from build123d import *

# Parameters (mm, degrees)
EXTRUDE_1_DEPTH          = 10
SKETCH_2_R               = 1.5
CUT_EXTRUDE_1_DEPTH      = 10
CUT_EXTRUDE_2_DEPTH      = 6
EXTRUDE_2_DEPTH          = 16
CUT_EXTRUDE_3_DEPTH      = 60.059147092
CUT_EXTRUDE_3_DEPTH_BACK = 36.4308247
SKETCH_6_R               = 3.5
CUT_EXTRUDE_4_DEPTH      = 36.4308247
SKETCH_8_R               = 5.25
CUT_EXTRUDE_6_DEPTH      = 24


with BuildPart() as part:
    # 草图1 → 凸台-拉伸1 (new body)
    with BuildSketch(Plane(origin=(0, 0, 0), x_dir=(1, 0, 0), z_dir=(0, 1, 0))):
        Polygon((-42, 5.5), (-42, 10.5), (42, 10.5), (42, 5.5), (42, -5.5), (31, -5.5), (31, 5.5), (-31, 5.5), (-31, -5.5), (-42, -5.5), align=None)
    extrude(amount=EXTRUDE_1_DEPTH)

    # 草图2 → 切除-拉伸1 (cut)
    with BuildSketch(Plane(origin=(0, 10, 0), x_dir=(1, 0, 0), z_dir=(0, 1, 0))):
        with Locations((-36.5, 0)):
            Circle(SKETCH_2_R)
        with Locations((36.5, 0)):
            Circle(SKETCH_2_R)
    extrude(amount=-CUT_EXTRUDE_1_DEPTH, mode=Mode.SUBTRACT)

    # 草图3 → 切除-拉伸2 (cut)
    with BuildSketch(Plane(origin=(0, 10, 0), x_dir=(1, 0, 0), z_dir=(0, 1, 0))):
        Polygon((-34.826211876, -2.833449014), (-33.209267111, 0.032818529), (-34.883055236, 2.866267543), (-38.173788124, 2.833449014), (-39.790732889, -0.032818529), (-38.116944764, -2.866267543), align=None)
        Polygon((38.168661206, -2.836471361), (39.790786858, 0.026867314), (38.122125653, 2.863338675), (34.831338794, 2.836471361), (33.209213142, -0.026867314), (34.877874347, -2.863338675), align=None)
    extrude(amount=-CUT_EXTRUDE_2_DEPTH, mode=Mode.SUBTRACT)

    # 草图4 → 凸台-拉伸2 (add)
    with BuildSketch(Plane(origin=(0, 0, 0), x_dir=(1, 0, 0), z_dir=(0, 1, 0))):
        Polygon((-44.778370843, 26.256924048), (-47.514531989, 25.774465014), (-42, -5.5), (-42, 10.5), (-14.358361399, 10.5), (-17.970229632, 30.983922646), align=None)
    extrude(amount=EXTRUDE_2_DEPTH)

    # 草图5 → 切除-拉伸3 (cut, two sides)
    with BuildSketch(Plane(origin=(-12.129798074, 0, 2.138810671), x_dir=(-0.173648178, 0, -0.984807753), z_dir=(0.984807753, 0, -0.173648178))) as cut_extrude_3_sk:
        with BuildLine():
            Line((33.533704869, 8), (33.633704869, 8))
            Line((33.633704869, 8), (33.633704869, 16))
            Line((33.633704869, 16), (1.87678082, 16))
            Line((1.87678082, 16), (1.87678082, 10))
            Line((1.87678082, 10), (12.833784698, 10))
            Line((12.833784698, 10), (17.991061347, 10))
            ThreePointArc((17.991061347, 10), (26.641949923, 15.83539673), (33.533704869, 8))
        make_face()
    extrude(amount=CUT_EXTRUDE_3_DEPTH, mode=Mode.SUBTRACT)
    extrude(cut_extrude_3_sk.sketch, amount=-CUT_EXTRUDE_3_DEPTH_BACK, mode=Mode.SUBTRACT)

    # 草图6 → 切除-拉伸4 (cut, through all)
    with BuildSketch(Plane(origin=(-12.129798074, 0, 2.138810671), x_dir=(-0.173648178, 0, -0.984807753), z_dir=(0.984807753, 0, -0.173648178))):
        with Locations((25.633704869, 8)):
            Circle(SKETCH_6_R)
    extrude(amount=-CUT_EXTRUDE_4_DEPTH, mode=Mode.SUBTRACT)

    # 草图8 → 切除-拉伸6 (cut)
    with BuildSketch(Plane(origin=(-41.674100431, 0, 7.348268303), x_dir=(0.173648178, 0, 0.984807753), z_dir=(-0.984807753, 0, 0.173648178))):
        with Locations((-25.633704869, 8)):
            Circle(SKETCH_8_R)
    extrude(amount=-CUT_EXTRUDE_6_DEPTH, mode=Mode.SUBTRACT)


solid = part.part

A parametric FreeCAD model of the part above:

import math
import FreeCAD as App
import Part
import Sketcher
from FreeCAD import Vector
Q = App.Units.Quantity


def add_polygon(sketch, points):
    """Adds a closed chain of lines whose ends are joined by coincident constraints."""
    first, n = sketch.GeometryCount, len(points)
    for a, b in zip(points, points[1:] + points[:1]):
        sketch.addGeometry(Part.LineSegment(App.Vector(*a, 0), App.Vector(*b, 0)), False)
    for i in range(n):
        sketch.addConstraint(Sketcher.Constraint("Coincident", first + i, 2, first + (i + 1) % n, 1))

doc = App.newDocument("Part")
body = doc.addObject("PartDesign::Body", "Body")

# Sketch on XZ plane
sketch1 = doc.addObject("Sketcher::SketchObject", "Sketch")
body.addObject(sketch1)
sketch1.AttachmentSupport = (doc.XZ_Plane, [""])
sketch1.MapMode = "FlatFace"
add_polygon(sketch1, [(-42, -10.5), (-42, 5.5), (-31, 5.5), (-31, -5.5), (31, -5.5), (31, 5.5), (42, 5.5), (42, -10.5)])  # lines 0-7
sketch1.addConstraint([
    Sketcher.Constraint("Vertical", 0),
    Sketcher.Constraint("Horizontal", 1),
    Sketcher.Constraint("Vertical", 2),
    Sketcher.Constraint("Horizontal", 3),
    Sketcher.Constraint("Vertical", 4),
    Sketcher.Constraint("Horizontal", 5),
    Sketcher.Constraint("Vertical", 6),
    Sketcher.Constraint("Horizontal", 7),
    Sketcher.Constraint("Symmetric", 1, 2, 3, 2, -1, 1),
    Sketcher.Constraint("Symmetric", 0, 2, 5, 2, -2),
    Sketcher.Constraint("Equal", 5, 2),
    Sketcher.Constraint("DistanceX", 1, 1, 1, 2, 11.0),
    Sketcher.Constraint("DistanceX", 3, 1, 3, 2, 62.0),
    Sketcher.Constraint("DistanceY", 0, 1, 0, 2, 16.0),
])
pad1 = doc.addObject("PartDesign::Pad", "Pad")
body.addObject(pad1)
pad1.Profile = sketch1
pad1.Length = 10
pad1.Reversed = True

# Sketch on XZ plane
sketch2 = doc.addObject("Sketcher::SketchObject", "Sketch001")
body.addObject(sketch2)
sketch2.AttachmentSupport = (doc.XZ_Plane, [""])
sketch2.MapMode = "FlatFace"
sketch2.AttachmentOffset = App.Placement(Vector(0, 0, -10), App.Rotation())
sketch2.addGeometry([
    Part.Circle(Vector(-36.5, 0, 0), Vector(0, 0, 1), 1.5),
    Part.Circle(Vector(36.5, 0, 0), Vector(0, 0, 1), 1.5),
], False)
sketch2.addConstraint([
    Sketcher.Constraint("Equal", 0, 1),
    Sketcher.Constraint("Symmetric", 0, 3, 1, 3, -1, 1),
    Sketcher.Constraint("PointOnObject", 0, 3, -1),
    Sketcher.Constraint("Diameter", 0, 3.0),
    Sketcher.Constraint("DistanceX", 0, 3, 1, 3, 73.0),
])
pocket1 = doc.addObject("PartDesign::Pocket", "Pocket")
body.addObject(pocket1)
pocket1.Profile = sketch2
pocket1.Length = 10
pocket1.Reversed = True

# Sketch on XZ plane
sketch3 = doc.addObject("Sketcher::SketchObject", "Sketch002")
body.addObject(sketch3)
sketch3.AttachmentSupport = (doc.XZ_Plane, [""])
sketch3.MapMode = "FlatFace"
sketch3.AttachmentOffset = App.Placement(Vector(0, 0, -10), App.Rotation())
add_polygon(sketch3, [(-34.826212, 2.833449), (-33.209267, -0.032819), (-34.883055, -2.866268), (-38.173788, -2.833449), (-39.790733, 0.032819), (-38.116945, 2.866268)])  # lines 0-5
add_polygon(sketch3, [(38.168661, 2.836471), (39.790787, -0.026867), (38.122126, -2.863339), (34.831339, -2.836471), (33.209213, 0.026867), (34.877874, 2.863339)])  # lines 6-11
sketch3.addConstraint([
    Sketcher.Constraint("Parallel", 0, 3),
    Sketcher.Constraint("Parallel", 1, 4),
    Sketcher.Constraint("Parallel", 2, 5),
    Sketcher.Constraint("Parallel", 6, 9),
    Sketcher.Constraint("Parallel", 7, 10),
    Sketcher.Constraint("Parallel", 8, 11),
    Sketcher.Constraint("Equal", 0, 1),
    Sketcher.Constraint("Equal", 1, 2),
    Sketcher.Constraint("Equal", 2, 3),
    Sketcher.Constraint("Equal", 5, 6),
    Sketcher.Constraint("Equal", 6, 7),
    Sketcher.Constraint("Equal", 7, 8),
    Sketcher.Constraint("Equal", 8, 9),
    Sketcher.Constraint("DistanceX", 5, 2, 6, 2, 74.616999),
    Sketcher.Constraint("DistanceY", 2, 2, 5, 2, 5.666898),
    Sketcher.Constraint("DistanceY", 1, 2, 6, 2, 2.8394),
    Sketcher.Constraint("DistanceY", 0, 2, -1, 1, 0.032819),
    Sketcher.Constraint("DistanceX", 2, 2, -1, 1, 38.173788),
    Sketcher.Constraint("DistanceY", 2, 2, -1, 1, 2.833449),
    Sketcher.Constraint("DistanceX", 5, 2, -1, 1, 34.826212),
    Sketcher.Constraint("DistanceY", 7, 2, -1, 1, 2.863339),
    Sketcher.Constraint("DistanceX", -1, 1, 8, 2, 34.831339),
    Sketcher.Constraint("DistanceY", 8, 2, -1, 1, 2.836471),
    Sketcher.Constraint("DistanceY", -1, 1, 10, 2, 2.863339),
])
pocket2 = doc.addObject("PartDesign::Pocket", "Pocket001")
body.addObject(pocket2)
pocket2.Profile = sketch3
pocket2.Length = 6
pocket2.Reversed = True

# Sketch on XZ plane
sketch4 = doc.addObject("Sketcher::SketchObject", "Sketch003")
body.addObject(sketch4)
sketch4.AttachmentSupport = (doc.XZ_Plane, [""])
sketch4.MapMode = "FlatFace"
add_polygon(sketch4, [(-44.778371, -26.256924), (-47.514532, -25.774465), (-42, 5.5), (-42, -10.5), (-14.358361, -10.5), (-17.97023, -30.983923)])  # lines 0-5
sketch4.addConstraint([
    Sketcher.Constraint("Vertical", 2),
    Sketcher.Constraint("Horizontal", 3),
    Sketcher.Constraint("Perpendicular", 0, 1),
    Sketcher.Constraint("Parallel", 1, 4),
    Sketcher.Constraint("Perpendicular", 4, 5),
    Sketcher.Constraint("DistanceY", 2, 2, 2, 1, 16.0),
    Sketcher.Constraint("Angle", 0, Q("170 deg")),
    Sketcher.Constraint("DistanceX", 1, 2, -1, 1, 42.0),
    Sketcher.Constraint("DistanceY", -1, 1, 1, 2, 5.5),
    Sketcher.Constraint("DistanceY", 4, 2, 5, 2, 4.726999),
    Sketcher.Constraint("DistanceX", 3, 1, 3, 2, 27.641639),
    Sketcher.Constraint("Distance", 4, 20.79992),
])
pad2 = doc.addObject("PartDesign::Pad", "Pad001")
body.addObject(pad2)
pad2.Profile = sketch4
pad2.Length = 16
pad2.Reversed = True

# Sketch on an angled plane
sketch5 = doc.addObject("Sketcher::SketchObject", "Sketch004")
body.addObject(sketch5)
sketch5.Placement = App.Placement(Vector(-12.129798, 0, 2.138811), App.Rotation(Vector(-0.173648178, 0, -0.984807753), Vector(0, 1, 0), Vector(0.984807753, 0, -0.173648178), "ZXY"))
sketch5.addGeometry([
    Part.LineSegment(Vector(33.533705, 8, 0), Vector(33.633705, 8, 0)),  # 0
    Part.LineSegment(Vector(33.633705, 8, 0), Vector(33.633705, 16, 0)),  # 1
    Part.LineSegment(Vector(33.633705, 16, 0), Vector(1.876781, 16, 0)),  # 2
    Part.LineSegment(Vector(1.876781, 16, 0), Vector(1.876781, 10, 0)),  # 3
    Part.LineSegment(Vector(1.876781, 10, 0), Vector(17.991061, 10, 0)),  # 4
    Part.ArcOfCircle(Part.Circle(Vector(25.633705, 8, 0), Vector(0, 0, 1), 7.9), math.radians(0), math.radians(165.335146)),  # 5
], False)
sketch5.addConstraint([
    Sketcher.Constraint("Coincident", 0, 2, 1, 1),
    Sketcher.Constraint("Coincident", 1, 2, 2, 1),
    Sketcher.Constraint("Coincident", 2, 2, 3, 1),
    Sketcher.Constraint("Coincident", 3, 2, 4, 1),
    Sketcher.Constraint("Coincident", 4, 2, 5, 2),
    Sketcher.Constraint("Coincident", 5, 1, 0, 1),
    Sketcher.Constraint("Horizontal", 0),
    Sketcher.Constraint("Vertical", 1),
    Sketcher.Constraint("Horizontal", 2),
    Sketcher.Constraint("Vertical", 3),
    Sketcher.Constraint("Horizontal", 4),
    Sketcher.Constraint("Horizontal", 5, 3, 0, 2),
    Sketcher.Constraint("Radius", 5, 7.9),
    Sketcher.Constraint("DistanceY", 1, 1, 1, 2, 8.0),
    Sketcher.Constraint("DistanceY", 3, 2, 3, 1, 6.0),
    Sketcher.Constraint("DistanceX", 0, 1, 0, 2, 0.1),
    Sketcher.Constraint("DistanceY", -1, 1, 5, 3, 8.0),
    Sketcher.Constraint("DistanceX", 4, 1, 4, 2, 16.114281),
    Sketcher.Constraint("DistanceX", -1, 1, 2, 2, 1.876781),
])
pocket3 = doc.addObject("PartDesign::Pocket", "Pocket002")
body.addObject(pocket3)
pocket3.Profile = sketch5
pocket3.Type = "ThroughAll"
pocket3.Midplane = True

# Sketch on an angled plane
sketch6 = doc.addObject("Sketcher::SketchObject", "Sketch005")
body.addObject(sketch6)
sketch6.Placement = App.Placement(Vector(-12.129798, 0, 2.138811), App.Rotation(Vector(-0.173648178, 0, -0.984807753), Vector(0, 1, 0), Vector(0.984807753, 0, -0.173648178), "ZXY"))
sketch6.addGeometry(Part.Circle(Vector(25.633705, 8, 0), Vector(0, 0, 1), 3.5), False)
sketch6.addConstraint([
    Sketcher.Constraint("Diameter", 0, 7.0),
    Sketcher.Constraint("DistanceY", -1, 1, 0, 3, 8.0),
    Sketcher.Constraint("DistanceX", -1, 1, 0, 3, 25.633705),
])
pocket4 = doc.addObject("PartDesign::Pocket", "Pocket003")
body.addObject(pocket4)
pocket4.Profile = sketch6
pocket4.Type = "ThroughAll"

# Sketch on an angled plane
sketch7 = doc.addObject("Sketcher::SketchObject", "Sketch006")
body.addObject(sketch7)
sketch7.Placement = App.Placement(Vector(-41.6741, 0, 7.348268), App.Rotation(Vector(0.173648178, 0, 0.984807753), Vector(0, 1, 0), Vector(-0.984807753, 0, 0.173648178), "ZXY"))
sketch7.addGeometry(Part.Circle(Vector(-25.633705, 8, 0), Vector(0, 0, 1), 5.25), False)
sketch7.addConstraint([
    Sketcher.Constraint("Diameter", 0, 10.5),
    Sketcher.Constraint("DistanceY", -1, 1, 0, 3, 8.0),
    Sketcher.Constraint("DistanceX", 0, 3, -1, 1, 25.633705),
])
pocket5 = doc.addObject("PartDesign::Pocket", "Pocket004")
body.addObject(pocket5)
pocket5.Profile = sketch7
pocket5.Length = 24

doc.recompute()
